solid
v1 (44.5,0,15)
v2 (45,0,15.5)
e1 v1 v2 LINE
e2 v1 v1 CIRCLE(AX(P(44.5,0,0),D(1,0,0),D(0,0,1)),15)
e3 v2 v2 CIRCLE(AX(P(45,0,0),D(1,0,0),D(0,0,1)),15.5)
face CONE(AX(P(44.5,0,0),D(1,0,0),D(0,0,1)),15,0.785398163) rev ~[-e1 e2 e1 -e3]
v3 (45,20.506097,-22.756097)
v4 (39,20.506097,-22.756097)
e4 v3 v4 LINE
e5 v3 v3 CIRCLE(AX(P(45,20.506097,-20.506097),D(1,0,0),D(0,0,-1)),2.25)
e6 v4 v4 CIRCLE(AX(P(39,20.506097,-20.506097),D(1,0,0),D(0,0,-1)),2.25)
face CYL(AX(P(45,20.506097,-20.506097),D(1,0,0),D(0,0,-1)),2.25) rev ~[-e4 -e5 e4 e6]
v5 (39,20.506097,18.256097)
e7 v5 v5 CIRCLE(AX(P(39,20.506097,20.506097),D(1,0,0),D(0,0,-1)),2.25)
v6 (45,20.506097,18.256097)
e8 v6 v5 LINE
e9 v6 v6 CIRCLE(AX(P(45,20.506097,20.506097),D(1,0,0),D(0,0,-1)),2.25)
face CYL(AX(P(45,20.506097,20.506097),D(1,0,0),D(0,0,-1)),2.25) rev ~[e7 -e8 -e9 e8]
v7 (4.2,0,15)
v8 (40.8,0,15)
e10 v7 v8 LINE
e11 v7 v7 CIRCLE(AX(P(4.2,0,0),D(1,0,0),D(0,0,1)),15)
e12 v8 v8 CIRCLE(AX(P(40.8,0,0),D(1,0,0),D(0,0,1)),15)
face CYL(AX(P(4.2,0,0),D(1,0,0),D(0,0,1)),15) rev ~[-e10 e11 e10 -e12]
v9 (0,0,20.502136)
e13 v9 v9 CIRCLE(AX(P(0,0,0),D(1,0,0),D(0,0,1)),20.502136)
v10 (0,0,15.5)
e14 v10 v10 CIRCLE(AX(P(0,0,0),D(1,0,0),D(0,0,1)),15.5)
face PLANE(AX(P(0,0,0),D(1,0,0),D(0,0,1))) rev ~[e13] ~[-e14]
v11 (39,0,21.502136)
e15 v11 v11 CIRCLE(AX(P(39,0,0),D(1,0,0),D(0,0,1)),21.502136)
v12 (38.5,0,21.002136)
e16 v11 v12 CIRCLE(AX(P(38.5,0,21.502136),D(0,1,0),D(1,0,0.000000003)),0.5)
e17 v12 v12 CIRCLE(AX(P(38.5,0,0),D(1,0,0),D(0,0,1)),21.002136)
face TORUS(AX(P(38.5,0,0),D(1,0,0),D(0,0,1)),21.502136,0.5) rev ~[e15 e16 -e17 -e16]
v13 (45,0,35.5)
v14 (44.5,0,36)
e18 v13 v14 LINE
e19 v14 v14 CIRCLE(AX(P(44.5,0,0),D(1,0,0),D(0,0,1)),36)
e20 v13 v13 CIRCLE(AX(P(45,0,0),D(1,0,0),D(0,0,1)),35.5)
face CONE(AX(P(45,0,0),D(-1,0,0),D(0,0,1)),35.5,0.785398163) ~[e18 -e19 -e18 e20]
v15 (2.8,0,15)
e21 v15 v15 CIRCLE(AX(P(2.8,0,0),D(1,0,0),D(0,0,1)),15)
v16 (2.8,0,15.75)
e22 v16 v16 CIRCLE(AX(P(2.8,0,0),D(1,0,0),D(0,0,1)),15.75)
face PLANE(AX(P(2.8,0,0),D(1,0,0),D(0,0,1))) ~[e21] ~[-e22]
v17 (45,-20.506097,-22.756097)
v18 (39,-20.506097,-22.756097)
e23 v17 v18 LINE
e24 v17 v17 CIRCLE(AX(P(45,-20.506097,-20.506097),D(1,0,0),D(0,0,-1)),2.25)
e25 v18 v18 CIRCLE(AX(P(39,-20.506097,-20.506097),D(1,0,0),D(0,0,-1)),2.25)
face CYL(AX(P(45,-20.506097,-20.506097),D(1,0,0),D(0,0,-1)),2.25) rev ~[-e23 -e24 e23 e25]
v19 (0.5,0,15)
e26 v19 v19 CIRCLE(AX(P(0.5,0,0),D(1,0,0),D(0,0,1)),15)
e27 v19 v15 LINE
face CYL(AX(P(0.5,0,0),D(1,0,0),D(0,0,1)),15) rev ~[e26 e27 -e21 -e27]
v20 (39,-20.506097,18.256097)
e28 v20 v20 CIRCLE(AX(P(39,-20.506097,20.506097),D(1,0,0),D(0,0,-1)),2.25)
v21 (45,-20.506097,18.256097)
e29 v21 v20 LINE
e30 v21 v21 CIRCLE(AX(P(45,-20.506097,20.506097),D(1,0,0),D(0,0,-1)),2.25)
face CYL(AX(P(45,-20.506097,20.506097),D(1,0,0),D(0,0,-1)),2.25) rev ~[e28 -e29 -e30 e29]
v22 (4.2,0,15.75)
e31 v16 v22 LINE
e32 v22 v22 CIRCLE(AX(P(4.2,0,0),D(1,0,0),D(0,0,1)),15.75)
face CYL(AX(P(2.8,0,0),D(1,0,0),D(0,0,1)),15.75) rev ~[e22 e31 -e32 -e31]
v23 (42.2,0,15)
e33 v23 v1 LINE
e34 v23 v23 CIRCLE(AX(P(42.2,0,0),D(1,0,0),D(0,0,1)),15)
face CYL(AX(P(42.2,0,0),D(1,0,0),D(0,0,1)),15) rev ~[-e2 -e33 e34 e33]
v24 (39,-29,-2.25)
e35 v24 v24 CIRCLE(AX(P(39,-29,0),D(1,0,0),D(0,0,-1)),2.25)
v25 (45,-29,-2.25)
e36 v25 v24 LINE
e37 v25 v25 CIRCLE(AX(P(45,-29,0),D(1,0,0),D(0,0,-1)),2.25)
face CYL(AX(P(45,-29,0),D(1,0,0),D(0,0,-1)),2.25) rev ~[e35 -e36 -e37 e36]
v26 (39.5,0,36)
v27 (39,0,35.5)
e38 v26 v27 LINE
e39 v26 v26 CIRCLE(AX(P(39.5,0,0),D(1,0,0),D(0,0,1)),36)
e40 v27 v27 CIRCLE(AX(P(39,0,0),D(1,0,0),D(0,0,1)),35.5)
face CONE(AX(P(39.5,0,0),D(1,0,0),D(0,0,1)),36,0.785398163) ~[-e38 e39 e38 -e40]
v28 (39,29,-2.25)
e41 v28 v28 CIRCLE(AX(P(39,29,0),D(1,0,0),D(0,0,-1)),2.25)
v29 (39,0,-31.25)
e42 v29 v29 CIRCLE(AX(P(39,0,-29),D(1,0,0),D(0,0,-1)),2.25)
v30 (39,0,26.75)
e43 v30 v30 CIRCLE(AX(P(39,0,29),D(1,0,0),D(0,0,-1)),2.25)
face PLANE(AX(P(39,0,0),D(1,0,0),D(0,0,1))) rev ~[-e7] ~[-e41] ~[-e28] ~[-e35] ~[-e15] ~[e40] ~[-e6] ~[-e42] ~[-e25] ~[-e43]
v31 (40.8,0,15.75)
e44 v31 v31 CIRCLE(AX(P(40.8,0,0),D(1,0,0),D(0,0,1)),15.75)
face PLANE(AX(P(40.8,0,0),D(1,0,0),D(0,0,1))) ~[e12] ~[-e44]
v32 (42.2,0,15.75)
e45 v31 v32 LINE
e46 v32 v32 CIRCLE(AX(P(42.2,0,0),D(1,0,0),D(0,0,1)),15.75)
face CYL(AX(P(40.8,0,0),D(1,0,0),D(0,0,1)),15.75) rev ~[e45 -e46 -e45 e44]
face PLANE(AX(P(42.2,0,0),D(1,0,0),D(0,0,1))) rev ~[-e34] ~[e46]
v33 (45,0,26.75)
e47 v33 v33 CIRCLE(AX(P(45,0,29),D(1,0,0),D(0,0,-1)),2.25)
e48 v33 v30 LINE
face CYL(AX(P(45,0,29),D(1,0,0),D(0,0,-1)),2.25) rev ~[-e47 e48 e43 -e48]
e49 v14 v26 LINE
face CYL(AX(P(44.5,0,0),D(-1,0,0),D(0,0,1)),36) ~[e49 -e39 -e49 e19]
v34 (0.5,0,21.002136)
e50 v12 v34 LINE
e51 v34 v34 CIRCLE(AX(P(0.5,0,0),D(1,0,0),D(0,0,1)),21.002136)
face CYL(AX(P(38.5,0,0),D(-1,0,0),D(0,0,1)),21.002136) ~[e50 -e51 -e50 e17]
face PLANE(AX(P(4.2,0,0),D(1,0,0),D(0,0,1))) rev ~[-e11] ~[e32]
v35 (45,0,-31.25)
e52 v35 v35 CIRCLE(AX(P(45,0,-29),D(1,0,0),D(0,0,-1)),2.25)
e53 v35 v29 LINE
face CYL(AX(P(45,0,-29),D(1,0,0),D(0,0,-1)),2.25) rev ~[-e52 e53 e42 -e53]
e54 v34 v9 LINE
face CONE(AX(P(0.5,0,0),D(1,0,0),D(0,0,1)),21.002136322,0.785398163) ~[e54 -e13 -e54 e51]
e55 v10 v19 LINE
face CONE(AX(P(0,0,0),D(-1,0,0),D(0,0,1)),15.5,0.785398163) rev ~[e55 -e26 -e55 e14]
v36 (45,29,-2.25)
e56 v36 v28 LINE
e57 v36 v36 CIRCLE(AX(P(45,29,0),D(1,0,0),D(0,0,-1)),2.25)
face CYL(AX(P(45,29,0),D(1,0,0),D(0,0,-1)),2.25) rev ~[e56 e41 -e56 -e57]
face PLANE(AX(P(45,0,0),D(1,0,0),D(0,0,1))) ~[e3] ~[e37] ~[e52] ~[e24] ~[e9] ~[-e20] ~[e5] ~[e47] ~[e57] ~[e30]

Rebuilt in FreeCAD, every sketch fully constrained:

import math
import FreeCAD as App
import Part
import Sketcher

V = App.Vector

doc = App.newDocument("Part")
body = doc.addObject("PartDesign::Body", "Body")

sketch1 = body.newObject("Sketcher::SketchObject", "Sketch")
sketch1.AttachmentSupport = (doc.getObject("XZ_Plane"), [""])
sketch1.MapMode = "FlatFace"
sketch1.addGeometry(Part.LineSegment(V(40.8, -15, 0), V(40.8, -15.75, 0)), False)
sketch1.addGeometry(Part.LineSegment(V(40.8, -15.75, 0), V(42.2, -15.75, 0)), False)
sketch1.addGeometry(Part.LineSegment(V(42.2, -15.75, 0), V(42.2, -15, 0)), False)
sketch1.addGeometry(Part.LineSegment(V(42.2, -15, 0), V(44.5, -15, 0)), False)
sketch1.addGeometry(Part.LineSegment(V(44.5, -15, 0), V(45, -15.5, 0)), False)
sketch1.addGeometry(Part.LineSegment(V(45, -15.5, 0), V(45, -35.5, 0)), False)
sketch1.addGeometry(Part.LineSegment(V(45, -35.5, 0), V(44.5, -36, 0)), False)
sketch1.addGeometry(Part.LineSegment(V(44.5, -36, 0), V(39.5, -36, 0)), False)
sketch1.addGeometry(Part.LineSegment(V(39.5, -36, 0), V(39, -35.5, 0)), False)
sketch1.addGeometry(Part.LineSegment(V(39, -35.5, 0), V(39, -21.5, 0)), False)
sketch1.addGeometry(Part.ArcOfCircle(Part.Circle(V(38.5, -21.5, 0), V(0, 0, 1), 0.5), math.radians(0), math.radians(90)), False)
sketch1.addGeometry(Part.LineSegment(V(38.5, -21, 0), V(0.5, -21, 0)), False)
sketch1.addGeometry(Part.LineSegment(V(0.5, -21, 0), V(0, -20.5, 0)), False)
sketch1.addGeometry(Part.LineSegment(V(0, -20.5, 0), V(0, -15.5, 0)), False)
sketch1.addGeometry(Part.LineSegment(V(0, -15.5, 0), V(0.5, -15, 0)), False)
sketch1.addGeometry(Part.LineSegment(V(0.5, -15, 0), V(2.8, -15, 0)), False)
sketch1.addGeometry(Part.LineSegment(V(2.8, -15, 0), V(2.8, -15.75, 0)), False)
sketch1.addGeometry(Part.LineSegment(V(2.8, -15.75, 0), V(4.2, -15.75, 0)), False)
sketch1.addGeometry(Part.LineSegment(V(4.2, -15.75, 0), V(4.2, -15, 0)), False)
sketch1.addGeometry(Part.LineSegment(V(4.2, -15, 0), V(40.8, -15, 0)), False)
sketch1.addConstraint(Sketcher.Constraint("Coincident", 0, 2, 1, 1))
sketch1.addConstraint(Sketcher.Constraint("Coincident", 1, 2, 2, 1))
sketch1.addConstraint(Sketcher.Constraint("Coincident", 2, 2, 3, 1))
sketch1.addConstraint(Sketcher.Constraint("Coincident", 3, 2, 4, 1))
sketch1.addConstraint(Sketcher.Constraint("Coincident", 4, 2, 5, 1))
sketch1.addConstraint(Sketcher.Constraint("Coincident", 5, 2, 6, 1))
sketch1.addConstraint(Sketcher.Constraint("Coincident", 6, 2, 7, 1))
sketch1.addConstraint(Sketcher.Constraint("Coincident", 7, 2, 8, 1))
sketch1.addConstraint(Sketcher.Constraint("Coincident", 8, 2, 9, 1))
sketch1.addConstraint(Sketcher.Constraint("Tangent", 9, 2, 10, 1))
sketch1.addConstraint(Sketcher.Constraint("Tangent", 10, 2, 11, 1))
sketch1.addConstraint(Sketcher.Constraint("Coincident", 11, 2, 12, 1))
sketch1.addConstraint(Sketcher.Constraint("Coincident", 12, 2, 13, 1))
sketch1.addConstraint(Sketcher.Constraint("Coincident", 13, 2, 14, 1))
sketch1.addConstraint(Sketcher.Constraint("Coincident", 14, 2, 15, 1))
sketch1.addConstraint(Sketcher.Constraint("Coincident", 15, 2, 16, 1))
sketch1.addConstraint(Sketcher.Constraint("Coincident", 16, 2, 17, 1))
sketch1.addConstraint(Sketcher.Constraint("Coincident", 17, 2, 18, 1))
sketch1.addConstraint(Sketcher.Constraint("Coincident", 18, 2, 19, 1))
sketch1.addConstraint(Sketcher.Constraint("Coincident", 19, 2, 0, 1))
sketch1.addConstraint(Sketcher.Constraint("Vertical", 0))
sketch1.addConstraint(Sketcher.Constraint("Horizontal", 1))
sketch1.addConstraint(Sketcher.Constraint("Vertical", 2))
sketch1.addConstraint(Sketcher.Constraint("Horizontal", 3))
sketch1.addConstraint(Sketcher.Constraint("Vertical", 5))
sketch1.addConstraint(Sketcher.Constraint("Horizontal", 7))
sketch1.addConstraint(Sketcher.Constraint("Vertical", 9))
sketch1.addConstraint(Sketcher.Constraint("Horizontal", 11))
sketch1.addConstraint(Sketcher.Constraint("Vertical", 13))
sketch1.addConstraint(Sketcher.Constraint("Horizontal", 15))
sketch1.addConstraint(Sketcher.Constraint("Vertical", 16))
sketch1.addConstraint(Sketcher.Constraint("Horizontal", 17))
sketch1.addConstraint(Sketcher.Constraint("Vertical", 18))
sketch1.addConstraint(Sketcher.Constraint("Horizontal", 19))
sketch1.addConstraint(Sketcher.Constraint("PointOnObject", 12, 2, -2))
sketch1.addConstraint(Sketcher.Constraint("Perpendicular", 4, 6))
sketch1.addConstraint(Sketcher.Constraint("Perpendicular", 6, 8))
sketch1.addConstraint(Sketcher.Constraint("Parallel", 8, 12))
sketch1.addConstraint(Sketcher.Constraint("Perpendicular", 12, 14))
sketch1.addConstraint(Sketcher.Constraint("Horizontal", 5, 2, 8, 2))
sketch1.addConstraint(Sketcher.Constraint("Horizontal", 4, 2, 13, 2))
sketch1.addConstraint(Sketcher.Constraint("Horizontal", 3, 2, 14, 2))
sketch1.addConstraint(Sketcher.Constraint("Horizontal", 1, 2, 16, 2))
sketch1.addConstraint(Sketcher.Constraint("Horizontal", 15, 2, 18, 2))
sketch1.addConstraint(Sketcher.Constraint("Vertical", 3, 2, 6, 2))
sketch1.addConstraint(Sketcher.Constraint("Vertical", 11, 2, 14, 2))
sketch1.addConstraint(Sketcher.Constraint("Equal", 3, 15))
sketch1.addConstraint(Sketcher.Constraint("Equal", 1, 17))
sketch1.addConstraint(Sketcher.Constraint("Equal", 4, 6))
sketch1.addConstraint(Sketcher.Constraint("Radius", 10, 0.5))
sketch1.addConstraint(Sketcher.Constraint("DistanceX", 7, 2, 7, 1, 5.0))
sketch1.addConstraint(Sketcher.Constraint("DistanceX", 11, 2, 11, 1, 38.0))
sketch1.addConstraint(Sketcher.Constraint("DistanceY", 5, 2, 5, 1, 20.0))
sketch1.addConstraint(Sketcher.Constraint("DistanceX", 1, 1, 1, 2, 1.4))
sketch1.addConstraint(Sketcher.Constraint("DistanceX", 3, 1, 3, 2, 2.3))
sketch1.addConstraint(Sketcher.Constraint("DistanceX", 19, 1, 19, 2, 36.6))
sketch1.addConstraint(Sketcher.Constraint("DistanceY", 2, 2, -1, 1, 15.0))
sketch1.addConstraint(Sketcher.Constraint("DistanceY", 0, 2, 0, 1, 0.75))
sketch1.addConstraint(Sketcher.Constraint("DistanceY", 9, 1, 9, 2, 13.997864))
revolution = body.newObject("PartDesign::Revolution", "Revolution")
revolution.Profile = sketch1
revolution.ReferenceAxis = (sketch1, ["H_Axis"])
revolution.Angle = 360

sketch2 = body.newObject("Sketcher::SketchObject", "Sketch001")
sketch2.AttachmentSupport = (doc.getObject("YZ_Plane"), [""])
sketch2.MapMode = "FlatFace"
sketch2.AttachmentOffset = App.Placement(V(0, 0, 67), App.Rotation())
sketch2.addGeometry(Part.Circle(V(14.1, 14.1, 0), V(0, 0, 1), 1.6), False)
sketch2.addGeometry(Part.Circle(V(20, 0, 0), V(0, 0, 1), 1.6), False)
sketch2.addGeometry(Part.Circle(V(14.1, -14.1, 0), V(0, 0, 1), 1.6), False)
sketch2.addGeometry(Part.Circle(V(0, -20, 0), V(0, 0, 1), 1.6), False)
sketch2.addGeometry(Part.Circle(V(-14.1, -14.1, 0), V(0, 0, 1), 1.6), False)
sketch2.addGeometry(Part.Circle(V(-20, 0, 0), V(0, 0, 1), 1.6), False)
sketch2.addGeometry(Part.Circle(V(-14.1, 14.1, 0), V(0, 0, 1), 1.6), False)
sketch2.addGeometry(Part.Circle(V(0, 20, 0), V(0, 0, 1), 1.6), False)
sketch2.addConstraint(Sketcher.Constraint("Equal", 0, 1))
sketch2.addConstraint(Sketcher.Constraint("Equal", 1, 2))
sketch2.addConstraint(Sketcher.Constraint("Equal", 2, 3))
sketch2.addConstraint(Sketcher.Constraint("Equal", 3, 4))
sketch2.addConstraint(Sketcher.Constraint("Equal", 4, 5))
sketch2.addConstraint(Sketcher.Constraint("Equal", 5, 6))
sketch2.addConstraint(Sketcher.Constraint("Equal", 6, 7))
sketch2.addConstraint(Sketcher.Constraint("Symmetric", 0, 3, 4, 3, -1, 1))
sketch2.addConstraint(Sketcher.Constraint("Symmetric", 1, 3, 5, 3, -1, 1))
sketch2.addConstraint(Sketcher.Constraint("Symmetric", 2, 3, 6, 3, -1, 1))
sketch2.addConstraint(Sketcher.Constraint("Symmetric", 3, 3, 7, 3, -1, 1))
sketch2.addConstraint(Sketcher.Constraint("Symmetric", 2, 3, 4, 3, -2))
sketch2.addConstraint(Sketcher.Constraint("PointOnObject", 1, 3, -1))
sketch2.addConstraint(Sketcher.Constraint("PointOnObject", 3, 3, -2))
sketch2.addConstraint(Sketcher.Constraint("Diameter", 0, 3.3))
sketch2.addConstraint(Sketcher.Constraint("DistanceX", -1, 1, 1, 3, 20.0))
sketch2.addConstraint(Sketcher.Constraint("DistanceY", 3, 3, -1, 1, 20.0))
sketch2.addConstraint(Sketcher.Constraint("DistanceY", 2, 3, 0, 3, 28.284271))
sketch2.addConstraint(Sketcher.Constraint("DistanceX", 4, 3, 2, 3, 28.284271))
doc.recompute()
hole = body.newObject("PartDesign::Hole", "Hole")
hole.Profile = sketch2
hole.ThreadType = "None"
hole.Diameter = 3.3
hole.DepthType = "Dimension"
hole.Depth = 13
hole.DrillPoint = "Angled"
hole.DrillPointAngle = 118

sketch3 = body.newObject("Sketcher::SketchObject", "Sketch002")
sketch3.AttachmentSupport = (doc.getObject("YZ_Plane"), [""])
sketch3.MapMode = "FlatFace"
sketch3.AttachmentOffset = App.Placement(V(0, 0, 45), App.Rotation())
sketch3.addGeometry(Part.Circle(V(29, 0, 0), V(0, 0, 1), 2.2), False)
sketch3.addGeometry(Part.Circle(V(20.5, -20.5, 0), V(0, 0, 1), 2.2), False)
sketch3.addGeometry(Part.Circle(V(0, -29, 0), V(0, 0, 1), 2.2), False)
sketch3.addGeometry(Part.Circle(V(-20.5, -20.5, 0), V(0, 0, 1), 2.2), False)
sketch3.addGeometry(Part.Circle(V(-29, 0, 0), V(0, 0, 1), 2.2), False)
sketch3.addGeometry(Part.Circle(V(-20.5, 20.5, 0), V(0, 0, 1), 2.2), False)
sketch3.addGeometry(Part.Circle(V(0, 29, 0), V(0, 0, 1), 2.2), False)
sketch3.addGeometry(Part.Circle(V(20.5, 20.5, 0), V(0, 0, 1), 2.2), False)
sketch3.addConstraint(Sketcher.Constraint("Equal", 0, 1))
sketch3.addConstraint(Sketcher.Constraint("Equal", 1, 2))
sketch3.addConstraint(Sketcher.Constraint("Equal", 2, 3))
sketch3.addConstraint(Sketcher.Constraint("Equal", 3, 4))
sketch3.addConstraint(Sketcher.Constraint("Equal", 4, 5))
sketch3.addConstraint(Sketcher.Constraint("Equal", 5, 6))
sketch3.addConstraint(Sketcher.Constraint("Equal", 6, 7))
sketch3.addConstraint(Sketcher.Constraint("Symmetric", 0, 3, 4, 3, -1, 1))
sketch3.addConstraint(Sketcher.Constraint("Symmetric", 1, 3, 5, 3, -1, 1))
sketch3.addConstraint(Sketcher.Constraint("Symmetric", 2, 3, 6, 3, -1, 1))
sketch3.addConstraint(Sketcher.Constraint("Symmetric", 3, 3, 7, 3, -1, 1))
sketch3.addConstraint(Sketcher.Constraint("Symmetric", 1, 3, 3, 3, -2))
sketch3.addConstraint(Sketcher.Constraint("PointOnObject", 0, 3, -1))
sketch3.addConstraint(Sketcher.Constraint("PointOnObject", 2, 3, -2))
sketch3.addConstraint(Sketcher.Constraint("Diameter", 0, 4.5))
sketch3.addConstraint(Sketcher.Constraint("DistanceX", -1, 1, 0, 3, 29.0))
sketch3.addConstraint(Sketcher.Constraint("DistanceY", 2, 3, -1, 1, 29.0))
sketch3.addConstraint(Sketcher.Constraint("DistanceX", -1, 1, 1, 3, 20.506097))
sketch3.addConstraint(Sketcher.Constraint("DistanceY", 1, 3, -1, 1, 20.506097))
pocket1 = body.newObject("PartDesign::Pocket", "Pocket")
pocket1.Profile = sketch3
pocket1.Type = "ThroughAll"

doc.recompute()
